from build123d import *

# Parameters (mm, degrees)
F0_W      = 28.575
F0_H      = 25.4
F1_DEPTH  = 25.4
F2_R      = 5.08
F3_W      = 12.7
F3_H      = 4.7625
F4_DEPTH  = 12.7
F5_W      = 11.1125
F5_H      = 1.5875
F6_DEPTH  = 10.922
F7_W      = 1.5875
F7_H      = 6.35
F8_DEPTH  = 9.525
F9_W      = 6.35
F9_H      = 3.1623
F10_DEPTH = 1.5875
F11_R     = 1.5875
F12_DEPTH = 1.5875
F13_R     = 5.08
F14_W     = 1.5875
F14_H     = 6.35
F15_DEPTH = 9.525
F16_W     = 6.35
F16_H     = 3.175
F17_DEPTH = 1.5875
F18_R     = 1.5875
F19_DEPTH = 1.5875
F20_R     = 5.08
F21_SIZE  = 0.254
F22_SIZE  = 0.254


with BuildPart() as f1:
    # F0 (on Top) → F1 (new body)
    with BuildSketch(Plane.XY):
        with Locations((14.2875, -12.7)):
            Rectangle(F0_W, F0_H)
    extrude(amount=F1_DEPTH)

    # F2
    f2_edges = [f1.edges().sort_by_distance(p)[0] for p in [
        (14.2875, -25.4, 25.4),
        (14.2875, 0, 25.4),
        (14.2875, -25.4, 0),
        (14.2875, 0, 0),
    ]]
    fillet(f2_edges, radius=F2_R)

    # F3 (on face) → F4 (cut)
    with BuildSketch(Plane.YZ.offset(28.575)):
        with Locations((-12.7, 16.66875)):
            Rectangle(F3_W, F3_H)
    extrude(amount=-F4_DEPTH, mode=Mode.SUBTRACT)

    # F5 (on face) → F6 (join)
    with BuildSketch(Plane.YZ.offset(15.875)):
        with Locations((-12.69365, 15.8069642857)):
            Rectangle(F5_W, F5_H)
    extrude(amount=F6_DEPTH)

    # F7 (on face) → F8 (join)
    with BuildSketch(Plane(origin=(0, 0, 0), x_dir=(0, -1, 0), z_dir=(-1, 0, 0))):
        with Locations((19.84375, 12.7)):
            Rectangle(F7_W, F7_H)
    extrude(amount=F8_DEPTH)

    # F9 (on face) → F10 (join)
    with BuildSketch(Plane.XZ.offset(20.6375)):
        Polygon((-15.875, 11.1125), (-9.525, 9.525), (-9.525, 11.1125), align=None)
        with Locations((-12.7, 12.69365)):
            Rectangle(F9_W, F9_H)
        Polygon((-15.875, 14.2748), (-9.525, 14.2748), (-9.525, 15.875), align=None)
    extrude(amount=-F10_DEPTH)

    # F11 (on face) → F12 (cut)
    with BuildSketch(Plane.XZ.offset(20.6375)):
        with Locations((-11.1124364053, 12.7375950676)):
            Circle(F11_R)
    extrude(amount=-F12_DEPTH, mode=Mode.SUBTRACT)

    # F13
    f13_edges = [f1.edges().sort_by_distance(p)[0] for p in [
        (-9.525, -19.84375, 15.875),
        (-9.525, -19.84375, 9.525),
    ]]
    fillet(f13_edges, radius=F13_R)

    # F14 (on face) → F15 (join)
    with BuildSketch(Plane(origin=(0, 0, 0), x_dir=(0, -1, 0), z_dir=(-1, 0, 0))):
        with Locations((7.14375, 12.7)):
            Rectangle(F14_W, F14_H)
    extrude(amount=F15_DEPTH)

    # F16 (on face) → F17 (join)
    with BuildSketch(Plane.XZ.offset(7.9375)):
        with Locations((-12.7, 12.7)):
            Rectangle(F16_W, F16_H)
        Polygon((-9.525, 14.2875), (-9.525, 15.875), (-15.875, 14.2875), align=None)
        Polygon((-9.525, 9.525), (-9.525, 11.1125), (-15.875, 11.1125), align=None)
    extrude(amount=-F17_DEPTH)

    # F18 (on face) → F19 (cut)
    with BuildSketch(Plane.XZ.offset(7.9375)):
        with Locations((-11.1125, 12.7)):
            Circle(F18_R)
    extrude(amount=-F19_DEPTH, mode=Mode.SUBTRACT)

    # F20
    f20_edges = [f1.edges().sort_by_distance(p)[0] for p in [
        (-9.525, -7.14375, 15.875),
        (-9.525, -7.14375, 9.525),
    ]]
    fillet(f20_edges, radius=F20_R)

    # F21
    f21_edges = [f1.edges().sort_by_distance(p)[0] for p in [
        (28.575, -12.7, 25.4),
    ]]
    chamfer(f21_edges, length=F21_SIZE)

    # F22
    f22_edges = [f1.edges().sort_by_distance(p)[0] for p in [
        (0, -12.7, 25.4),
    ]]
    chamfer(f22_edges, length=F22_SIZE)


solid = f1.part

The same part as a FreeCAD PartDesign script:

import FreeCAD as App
import Part
import Sketcher

V = App.Vector
Q = App.Units.Quantity


def edges_at(feature, points):
    """Names of the edges that pass closest to the given points."""
    edges = feature.Shape.Edges
    near = lambda p: min(range(len(edges)), key=lambda i: edges[i].distToShape(Part.Vertex(*p))[0])
    return sorted({f"Edge{near(p) + 1}" for p in points})

doc = App.newDocument("Part")
body = doc.addObject("PartDesign::Body", "Body")

sketch1 = body.newObject("Sketcher::SketchObject", "Sketch")
sketch1.AttachmentSupport = (doc.getObject("XY_Plane"), [""])
sketch1.MapMode = "FlatFace"
sketch1.addGeometry(Part.LineSegment(V(0, 0, 0), V(0, -25, 0)), False)
sketch1.addGeometry(Part.LineSegment(V(0, -25, 0), V(29, -25, 0)), False)
sketch1.addGeometry(Part.LineSegment(V(29, -25, 0), V(29, 0, 0)), False)
sketch1.addGeometry(Part.LineSegment(V(29, 0, 0), V(0, 0, 0)), False)
sketch1.addConstraint(Sketcher.Constraint("Coincident", 0, 2, 1, 1))
sketch1.addConstraint(Sketcher.Constraint("Coincident", 1, 2, 2, 1))
sketch1.addConstraint(Sketcher.Constraint("Coincident", 2, 2, 3, 1))
sketch1.addConstraint(Sketcher.Constraint("Coincident", 3, 2, 0, 1))
sketch1.addConstraint(Sketcher.Constraint("Vertical", 0))
sketch1.addConstraint(Sketcher.Constraint("Horizontal", 1))
sketch1.addConstraint(Sketcher.Constraint("Vertical", 2))
sketch1.addConstraint(Sketcher.Constraint("Horizontal", 3))
sketch1.addConstraint(Sketcher.Constraint("Coincident", 3, 2, -1, 1))
sketch1.addConstraint(Sketcher.Constraint("DistanceY", 0, 2, 0, 1, Q("1 in")))
sketch1.addConstraint(Sketcher.Constraint("DistanceX", 1, 1, 1, 2, Q("1.125 in")))
pad1 = body.newObject("PartDesign::Pad", "Pad")
pad1.Profile = sketch1
pad1.Length = Q("1 in")
doc.recompute()

fillet = body.newObject("PartDesign::Fillet", "Fillet")
fillet.Base = (pad1, edges_at(pad1, [
    (14.287, -25.4, 25.4),
    (14.287, 0, 25.4),
    (14.287, -25.4, 0),
    (14.287, 0, 0),
]))
fillet.Radius = Q("0.2 in")

sketch2 = body.newObject("Sketcher::SketchObject", "Sketch001")
sketch2.AttachmentSupport = (doc.getObject("YZ_Plane"), [""])
sketch2.MapMode = "FlatFace"
sketch2.AttachmentOffset = App.Placement(V(0, 0, 1.125 * 25.4), App.Rotation())
sketch2.addGeometry(Part.LineSegment(V(-19.1, 19.1, 0), V(-19.1, 14.3, 0)), False)
sketch2.addGeometry(Part.LineSegment(V(-19.1, 14.3, 0), V(-6.3, 14.3, 0)), False)
sketch2.addGeometry(Part.LineSegment(V(-6.3, 14.3, 0), V(-6.3, 19.1, 0)), False)
sketch2.addGeometry(Part.LineSegment(V(-6.3, 19.1, 0), V(-19.1, 19.1, 0)), False)
sketch2.addConstraint(Sketcher.Constraint("Coincident", 0, 2, 1, 1))
sketch2.addConstraint(Sketcher.Constraint("Coincident", 1, 2, 2, 1))
sketch2.addConstraint(Sketcher.Constraint("Coincident", 2, 2, 3, 1))
sketch2.addConstraint(Sketcher.Constraint("Coincident", 3, 2, 0, 1))
sketch2.addConstraint(Sketcher.Constraint("Vertical", 0))
sketch2.addConstraint(Sketcher.Constraint("Horizontal", 1))
sketch2.addConstraint(Sketcher.Constraint("Vertical", 2))
sketch2.addConstraint(Sketcher.Constraint("Horizontal", 3))
sketch2.addConstraint(Sketcher.Constraint("DistanceX", 1, 1, 1, 2, Q("0.5 in")))
sketch2.addConstraint(Sketcher.Constraint("DistanceY", 0, 2, 0, 1, Q("0.1875 in")))
sketch2.addConstraint(Sketcher.Constraint("DistanceX", 0, 2, -1, 1, Q("0.75 in")))
sketch2.addConstraint(Sketcher.Constraint("DistanceY", -1, 1, 2, 2, Q("0.75 in")))
pocket1 = body.newObject("PartDesign::Pocket", "Pocket")
pocket1.Profile = sketch2
pocket1.Length = Q("0.5 in")

sketch3 = body.newObject("Sketcher::SketchObject", "Sketch002")
sketch3.AttachmentSupport = (doc.getObject("YZ_Plane"), [""])
sketch3.MapMode = "FlatFace"
sketch3.AttachmentOffset = App.Placement(V(0, 0, 0.625 * 25.4), App.Rotation())
sketch3.addGeometry(Part.LineSegment(V(-18.2, 16.6, 0), V(-18.2, 15, 0)), False)
sketch3.addGeometry(Part.LineSegment(V(-18.2, 15, 0), V(-7.1, 15, 0)), False)
sketch3.addGeometry(Part.LineSegment(V(-7.1, 15, 0), V(-7.1, 16.6, 0)), False)
sketch3.addGeometry(Part.LineSegment(V(-7.1, 16.6, 0), V(-18.2, 16.6, 0)), False)
sketch3.addConstraint(Sketcher.Constraint("Coincident", 0, 2, 1, 1))
sketch3.addConstraint(Sketcher.Constraint("Coincident", 1, 2, 2, 1))
sketch3.addConstraint(Sketcher.Constraint("Coincident", 2, 2, 3, 1))
sketch3.addConstraint(Sketcher.Constraint("Coincident", 3, 2, 0, 1))
sketch3.addConstraint(Sketcher.Constraint("Vertical", 0))
sketch3.addConstraint(Sketcher.Constraint("Horizontal", 1))
sketch3.addConstraint(Sketcher.Constraint("Vertical", 2))
sketch3.addConstraint(Sketcher.Constraint("Horizontal", 3))
sketch3.addConstraint(Sketcher.Constraint("DistanceX", 1, 1, 1, 2, Q("0.4375 in")))
sketch3.addConstraint(Sketcher.Constraint("DistanceY", 0, 2, 0, 1, Q("0.0625 in")))
sketch3.addConstraint(Sketcher.Constraint("DistanceX", 1, 2, -1, 1, Q("0.281 in")))
sketch3.addConstraint(Sketcher.Constraint("DistanceY", -1, 1, 0, 2, Q("15.013214 mm")))
pad2 = body.newObject("PartDesign::Pad", "Pad001")
pad2.Profile = sketch3
pad2.Length = Q("0.43 in")

sketch4 = body.newObject("Sketcher::SketchObject", "Sketch003")
sketch4.AttachmentSupport = (doc.getObject("YZ_Plane"), [""])
sketch4.MapMode = "FlatFace"
sketch4.addGeometry(Part.LineSegment(V(-19.1, 15.9, 0), V(-19.1, 9.5, 0)), False)
sketch4.addGeometry(Part.LineSegment(V(-19.1, 9.5, 0), V(-20.6, 9.5, 0)), False)
sketch4.addGeometry(Part.LineSegment(V(-20.6, 9.5, 0), V(-20.6, 15.9, 0)), False)
sketch4.addGeometry(Part.LineSegment(V(-20.6, 15.9, 0), V(-19.1, 15.9, 0)), False)
sketch4.addConstraint(Sketcher.Constraint("Coincident", 0, 2, 1, 1))
sketch4.addConstraint(Sketcher.Constraint("Coincident", 1, 2, 2, 1))
sketch4.addConstraint(Sketcher.Constraint("Coincident", 2, 2, 3, 1))
sketch4.addConstraint(Sketcher.Constraint("Coincident", 3, 2, 0, 1))
sketch4.addConstraint(Sketcher.Constraint("Vertical", 0))
sketch4.addConstraint(Sketcher.Constraint("Horizontal", 1))
sketch4.addConstraint(Sketcher.Constraint("Vertical", 2))
sketch4.addConstraint(Sketcher.Constraint("Horizontal", 3))
sketch4.addConstraint(Sketcher.Constraint("DistanceY", 0, 2, 0, 1, Q("0.25 in")))
sketch4.addConstraint(Sketcher.Constraint("DistanceX", 1, 2, 1, 1, Q("0.0625 in")))
sketch4.addConstraint(Sketcher.Constraint("DistanceX", 0, 2, -1, 1, Q("0.75 in")))
sketch4.addConstraint(Sketcher.Constraint("DistanceY", -1, 1, 0, 2, Q("0.375 in")))
pad3 = body.newObject("PartDesign::Pad", "Pad002")
pad3.Profile = sketch4
pad3.Length = Q("0.375 in")
pad3.Reversed = True

sketch5 = body.newObject("Sketcher::SketchObject", "Sketch004")
sketch5.AttachmentSupport = (doc.getObject("XZ_Plane"), [""])
sketch5.MapMode = "FlatFace"
sketch5.AttachmentOffset = App.Placement(V(0, 0, 0.8125 * 25.4), App.Rotation())
sketch5.addGeometry(Part.LineSegment(V(-15.9, 11.1, 0), V(-9.5, 9.5, 0)), False)
sketch5.addGeometry(Part.LineSegment(V(-9.5, 9.5, 0), V(-9.5, 15.9, 0)), False)
sketch5.addGeometry(Part.LineSegment(V(-9.5, 15.9, 0), V(-15.9, 14.3, 0)), False)
sketch5.addGeometry(Part.LineSegment(V(-15.9, 14.3, 0), V(-15.9, 11.1, 0)), False)
sketch5.addConstraint(Sketcher.Constraint("Coincident", 0, 2, 1, 1))
sketch5.addConstraint(Sketcher.Constraint("Coincident", 1, 2, 2, 1))
sketch5.addConstraint(Sketcher.Constraint("Coincident", 2, 2, 3, 1))
sketch5.addConstraint(Sketcher.Constraint("Coincident", 3, 2, 0, 1))
sketch5.addConstraint(Sketcher.Constraint("Vertical", 1))
sketch5.addConstraint(Sketcher.Constraint("Vertical", 3))
sketch5.addConstraint(Sketcher.Constraint("DistanceY", 1, 1, 1, 2, Q("0.25 in")))
sketch5.addConstraint(Sketcher.Constraint("DistanceX", 2, 2, 1, 2, Q("0.25 in")))
sketch5.addConstraint(Sketcher.Constraint("DistanceY", 3, 2, 3, 1, Q("0.1245 in")))
sketch5.addConstraint(Sketcher.Constraint("DistanceX", 0, 2, -1, 1, Q("0.375 in")))
sketch5.addConstraint(Sketcher.Constraint("DistanceY", -1, 1, 0, 2, Q("0.375 in")))
sketch5.addConstraint(Sketcher.Constraint("DistanceY", -1, 1, 2, 2, Q("0.562 in")))
pad4 = body.newObject("PartDesign::Pad", "Pad003")
pad4.Profile = sketch5
pad4.Length = Q("0.0625 in")
pad4.Reversed = True

sketch6 = body.newObject("Sketcher::SketchObject", "Sketch005")
sketch6.AttachmentSupport = (doc.getObject("XZ_Plane"), [""])
sketch6.MapMode = "FlatFace"
sketch6.AttachmentOffset = App.Placement(V(0, 0, 0.8125 * 25.4), App.Rotation())
sketch6.addGeometry(Part.Circle(V(-11.1, 12.7, 0), V(0, 0, 1), 1.6), False)
sketch6.addConstraint(Sketcher.Constraint("Diameter", 0, Q("0.125 in")))
sketch6.addConstraint(Sketcher.Constraint("DistanceX", 0, 3, -1, 1, Q("11.112436 mm")))
sketch6.addConstraint(Sketcher.Constraint("DistanceY", -1, 1, 0, 3, Q("12.737595 mm")))
pocket2 = body.newObject("PartDesign::Pocket", "Pocket001")
pocket2.Profile = sketch6
pocket2.Length = Q("0.0625 in")
doc.recompute()

fillet2 = body.newObject("PartDesign::Fillet", "Fillet001")
fillet2.Base = (pocket2, edges_at(pocket2, [(-9.525, -19.844, 15.875), (-9.525, -19.844, 9.525)]))
fillet2.Radius = Q("0.2 in")

sketch7 = body.newObject("Sketcher::SketchObject", "Sketch006")
sketch7.AttachmentSupport = (doc.getObject("YZ_Plane"), [""])
sketch7.MapMode = "FlatFace"
sketch7.addGeometry(Part.LineSegment(V(-6.3, 15.9, 0), V(-6.3, 9.5, 0)), False)
sketch7.addGeometry(Part.LineSegment(V(-6.3, 9.5, 0), V(-7.9, 9.5, 0)), False)
sketch7.addGeometry(Part.LineSegment(V(-7.9, 9.5, 0), V(-7.9, 15.9, 0)), False)
sketch7.addGeometry(Part.LineSegment(V(-7.9, 15.9, 0), V(-6.3, 15.9, 0)), False)
sketch7.addConstraint(Sketcher.Constraint("Coincident", 0, 2, 1, 1))
sketch7.addConstraint(Sketcher.Constraint("Coincident", 1, 2, 2, 1))
sketch7.addConstraint(Sketcher.Constraint("Coincident", 2, 2, 3, 1))
sketch7.addConstraint(Sketcher.Constraint("Coincident", 3, 2, 0, 1))
sketch7.addConstraint(Sketcher.Constraint("Vertical", 0))
sketch7.addConstraint(Sketcher.Constraint("Horizontal", 1))
sketch7.addConstraint(Sketcher.Constraint("Vertical", 2))
sketch7.addConstraint(Sketcher.Constraint("Horizontal", 3))
sketch7.addConstraint(Sketcher.Constraint("DistanceY", 0, 2, 0, 1, Q("0.25 in")))
sketch7.addConstraint(Sketcher.Constraint("DistanceX", 1, 2, 1, 1, Q("0.0625 in")))
sketch7.addConstraint(Sketcher.Constraint("DistanceX", 0, 2, -1, 1, Q("0.25 in")))
sketch7.addConstraint(Sketcher.Constraint("DistanceY", -1, 1, 0, 2, Q("0.375 in")))
pad5 = body.newObject("PartDesign::Pad", "Pad004")
pad5.Profile = sketch7
pad5.Length = Q("0.375 in")
pad5.Reversed = True

sketch8 = body.newObject("Sketcher::SketchObject", "Sketch007")
sketch8.AttachmentSupport = (doc.getObject("XZ_Plane"), [""])
sketch8.MapMode = "FlatFace"
sketch8.AttachmentOffset = App.Placement(V(0, 0, 0.3125 * 25.4), App.Rotation())
sketch8.addGeometry(Part.LineSegment(V(-15.9, 14.3, 0), V(-15.9, 11.1, 0)), False)
sketch8.addGeometry(Part.LineSegment(V(-15.9, 11.1, 0), V(-9.5, 9.5, 0)), False)
sketch8.addGeometry(Part.LineSegment(V(-9.5, 9.5, 0), V(-9.5, 15.9, 0)), False)
sketch8.addGeometry(Part.LineSegment(V(-9.5, 15.9, 0), V(-15.9, 14.3, 0)), False)
sketch8.addConstraint(Sketcher.Constraint("Coincident", 0, 2, 1, 1))
sketch8.addConstraint(Sketcher.Constraint("Coincident", 1, 2, 2, 1))
sketch8.addConstraint(Sketcher.Constraint("Coincident", 2, 2, 3, 1))
sketch8.addConstraint(Sketcher.Constraint("Coincident", 3, 2, 0, 1))
sketch8.addConstraint(Sketcher.Constraint("Vertical", 0))
sketch8.addConstraint(Sketcher.Constraint("Vertical", 2))
sketch8.addConstraint(Sketcher.Constraint("Equal", 1, 3))
sketch8.addConstraint(Sketcher.Constraint("DistanceY", 2, 1, 2, 2, Q("0.25 in")))
sketch8.addConstraint(Sketcher.Constraint("DistanceY", 0, 2, 0, 1, Q("0.125 in")))
sketch8.addConstraint(Sketcher.Constraint("DistanceX", 0, 2, 1, 2, Q("0.25 in")))
sketch8.addConstraint(Sketcher.Constraint("DistanceX", 0, 2, -1, 1, Q("0.625 in")))
sketch8.addConstraint(Sketcher.Constraint("DistanceY", -1, 1, 0, 2, Q("0.4375 in")))
pad6 = body.newObject("PartDesign::Pad", "Pad005")
pad6.Profile = sketch8
pad6.Length = Q("0.0625 in")
pad6.Reversed = True

sketch9 = body.newObject("Sketcher::SketchObject", "Sketch008")
sketch9.AttachmentSupport = (doc.getObject("XZ_Plane"), [""])
sketch9.MapMode = "FlatFace"
sketch9.AttachmentOffset = App.Placement(V(0, 0, 0.3125 * 25.4), App.Rotation())
sketch9.addGeometry(Part.Circle(V(-11.1, 12.7, 0), V(0, 0, 1), 1.6), False)
sketch9.addConstraint(Sketcher.Constraint("Diameter", 0, Q("0.125 in")))
sketch9.addConstraint(Sketcher.Constraint("DistanceY", -1, 1, 0, 3, Q("0.5 in")))
sketch9.addConstraint(Sketcher.Constraint("DistanceX", 0, 3, -1, 1, Q("0.4375 in")))
pocket3 = body.newObject("PartDesign::Pocket", "Pocket002")
pocket3.Profile = sketch9
pocket3.Length = Q("0.0625 in")
doc.recompute()

fillet3 = body.newObject("PartDesign::Fillet", "Fillet002")
fillet3.Base = (pocket3, edges_at(pocket3, [(-9.525, -7.144, 15.875), (-9.525, -7.144, 9.525)]))
fillet3.Radius = Q("0.2 in")
doc.recompute()

chamfer = body.newObject("PartDesign::Chamfer", "Chamfer")
chamfer.Base = (fillet3, edges_at(fillet3, [(28.575, -12.7, 25.4)]))
chamfer.Size = Q("0.01 in")
doc.recompute()

chamfer2 = body.newObject("PartDesign::Chamfer", "Chamfer001")
chamfer2.Base = (chamfer, edges_at(chamfer, [(0, -12.7, 25.4)]))
chamfer2.Size = Q("0.01 in")

doc.recompute()
